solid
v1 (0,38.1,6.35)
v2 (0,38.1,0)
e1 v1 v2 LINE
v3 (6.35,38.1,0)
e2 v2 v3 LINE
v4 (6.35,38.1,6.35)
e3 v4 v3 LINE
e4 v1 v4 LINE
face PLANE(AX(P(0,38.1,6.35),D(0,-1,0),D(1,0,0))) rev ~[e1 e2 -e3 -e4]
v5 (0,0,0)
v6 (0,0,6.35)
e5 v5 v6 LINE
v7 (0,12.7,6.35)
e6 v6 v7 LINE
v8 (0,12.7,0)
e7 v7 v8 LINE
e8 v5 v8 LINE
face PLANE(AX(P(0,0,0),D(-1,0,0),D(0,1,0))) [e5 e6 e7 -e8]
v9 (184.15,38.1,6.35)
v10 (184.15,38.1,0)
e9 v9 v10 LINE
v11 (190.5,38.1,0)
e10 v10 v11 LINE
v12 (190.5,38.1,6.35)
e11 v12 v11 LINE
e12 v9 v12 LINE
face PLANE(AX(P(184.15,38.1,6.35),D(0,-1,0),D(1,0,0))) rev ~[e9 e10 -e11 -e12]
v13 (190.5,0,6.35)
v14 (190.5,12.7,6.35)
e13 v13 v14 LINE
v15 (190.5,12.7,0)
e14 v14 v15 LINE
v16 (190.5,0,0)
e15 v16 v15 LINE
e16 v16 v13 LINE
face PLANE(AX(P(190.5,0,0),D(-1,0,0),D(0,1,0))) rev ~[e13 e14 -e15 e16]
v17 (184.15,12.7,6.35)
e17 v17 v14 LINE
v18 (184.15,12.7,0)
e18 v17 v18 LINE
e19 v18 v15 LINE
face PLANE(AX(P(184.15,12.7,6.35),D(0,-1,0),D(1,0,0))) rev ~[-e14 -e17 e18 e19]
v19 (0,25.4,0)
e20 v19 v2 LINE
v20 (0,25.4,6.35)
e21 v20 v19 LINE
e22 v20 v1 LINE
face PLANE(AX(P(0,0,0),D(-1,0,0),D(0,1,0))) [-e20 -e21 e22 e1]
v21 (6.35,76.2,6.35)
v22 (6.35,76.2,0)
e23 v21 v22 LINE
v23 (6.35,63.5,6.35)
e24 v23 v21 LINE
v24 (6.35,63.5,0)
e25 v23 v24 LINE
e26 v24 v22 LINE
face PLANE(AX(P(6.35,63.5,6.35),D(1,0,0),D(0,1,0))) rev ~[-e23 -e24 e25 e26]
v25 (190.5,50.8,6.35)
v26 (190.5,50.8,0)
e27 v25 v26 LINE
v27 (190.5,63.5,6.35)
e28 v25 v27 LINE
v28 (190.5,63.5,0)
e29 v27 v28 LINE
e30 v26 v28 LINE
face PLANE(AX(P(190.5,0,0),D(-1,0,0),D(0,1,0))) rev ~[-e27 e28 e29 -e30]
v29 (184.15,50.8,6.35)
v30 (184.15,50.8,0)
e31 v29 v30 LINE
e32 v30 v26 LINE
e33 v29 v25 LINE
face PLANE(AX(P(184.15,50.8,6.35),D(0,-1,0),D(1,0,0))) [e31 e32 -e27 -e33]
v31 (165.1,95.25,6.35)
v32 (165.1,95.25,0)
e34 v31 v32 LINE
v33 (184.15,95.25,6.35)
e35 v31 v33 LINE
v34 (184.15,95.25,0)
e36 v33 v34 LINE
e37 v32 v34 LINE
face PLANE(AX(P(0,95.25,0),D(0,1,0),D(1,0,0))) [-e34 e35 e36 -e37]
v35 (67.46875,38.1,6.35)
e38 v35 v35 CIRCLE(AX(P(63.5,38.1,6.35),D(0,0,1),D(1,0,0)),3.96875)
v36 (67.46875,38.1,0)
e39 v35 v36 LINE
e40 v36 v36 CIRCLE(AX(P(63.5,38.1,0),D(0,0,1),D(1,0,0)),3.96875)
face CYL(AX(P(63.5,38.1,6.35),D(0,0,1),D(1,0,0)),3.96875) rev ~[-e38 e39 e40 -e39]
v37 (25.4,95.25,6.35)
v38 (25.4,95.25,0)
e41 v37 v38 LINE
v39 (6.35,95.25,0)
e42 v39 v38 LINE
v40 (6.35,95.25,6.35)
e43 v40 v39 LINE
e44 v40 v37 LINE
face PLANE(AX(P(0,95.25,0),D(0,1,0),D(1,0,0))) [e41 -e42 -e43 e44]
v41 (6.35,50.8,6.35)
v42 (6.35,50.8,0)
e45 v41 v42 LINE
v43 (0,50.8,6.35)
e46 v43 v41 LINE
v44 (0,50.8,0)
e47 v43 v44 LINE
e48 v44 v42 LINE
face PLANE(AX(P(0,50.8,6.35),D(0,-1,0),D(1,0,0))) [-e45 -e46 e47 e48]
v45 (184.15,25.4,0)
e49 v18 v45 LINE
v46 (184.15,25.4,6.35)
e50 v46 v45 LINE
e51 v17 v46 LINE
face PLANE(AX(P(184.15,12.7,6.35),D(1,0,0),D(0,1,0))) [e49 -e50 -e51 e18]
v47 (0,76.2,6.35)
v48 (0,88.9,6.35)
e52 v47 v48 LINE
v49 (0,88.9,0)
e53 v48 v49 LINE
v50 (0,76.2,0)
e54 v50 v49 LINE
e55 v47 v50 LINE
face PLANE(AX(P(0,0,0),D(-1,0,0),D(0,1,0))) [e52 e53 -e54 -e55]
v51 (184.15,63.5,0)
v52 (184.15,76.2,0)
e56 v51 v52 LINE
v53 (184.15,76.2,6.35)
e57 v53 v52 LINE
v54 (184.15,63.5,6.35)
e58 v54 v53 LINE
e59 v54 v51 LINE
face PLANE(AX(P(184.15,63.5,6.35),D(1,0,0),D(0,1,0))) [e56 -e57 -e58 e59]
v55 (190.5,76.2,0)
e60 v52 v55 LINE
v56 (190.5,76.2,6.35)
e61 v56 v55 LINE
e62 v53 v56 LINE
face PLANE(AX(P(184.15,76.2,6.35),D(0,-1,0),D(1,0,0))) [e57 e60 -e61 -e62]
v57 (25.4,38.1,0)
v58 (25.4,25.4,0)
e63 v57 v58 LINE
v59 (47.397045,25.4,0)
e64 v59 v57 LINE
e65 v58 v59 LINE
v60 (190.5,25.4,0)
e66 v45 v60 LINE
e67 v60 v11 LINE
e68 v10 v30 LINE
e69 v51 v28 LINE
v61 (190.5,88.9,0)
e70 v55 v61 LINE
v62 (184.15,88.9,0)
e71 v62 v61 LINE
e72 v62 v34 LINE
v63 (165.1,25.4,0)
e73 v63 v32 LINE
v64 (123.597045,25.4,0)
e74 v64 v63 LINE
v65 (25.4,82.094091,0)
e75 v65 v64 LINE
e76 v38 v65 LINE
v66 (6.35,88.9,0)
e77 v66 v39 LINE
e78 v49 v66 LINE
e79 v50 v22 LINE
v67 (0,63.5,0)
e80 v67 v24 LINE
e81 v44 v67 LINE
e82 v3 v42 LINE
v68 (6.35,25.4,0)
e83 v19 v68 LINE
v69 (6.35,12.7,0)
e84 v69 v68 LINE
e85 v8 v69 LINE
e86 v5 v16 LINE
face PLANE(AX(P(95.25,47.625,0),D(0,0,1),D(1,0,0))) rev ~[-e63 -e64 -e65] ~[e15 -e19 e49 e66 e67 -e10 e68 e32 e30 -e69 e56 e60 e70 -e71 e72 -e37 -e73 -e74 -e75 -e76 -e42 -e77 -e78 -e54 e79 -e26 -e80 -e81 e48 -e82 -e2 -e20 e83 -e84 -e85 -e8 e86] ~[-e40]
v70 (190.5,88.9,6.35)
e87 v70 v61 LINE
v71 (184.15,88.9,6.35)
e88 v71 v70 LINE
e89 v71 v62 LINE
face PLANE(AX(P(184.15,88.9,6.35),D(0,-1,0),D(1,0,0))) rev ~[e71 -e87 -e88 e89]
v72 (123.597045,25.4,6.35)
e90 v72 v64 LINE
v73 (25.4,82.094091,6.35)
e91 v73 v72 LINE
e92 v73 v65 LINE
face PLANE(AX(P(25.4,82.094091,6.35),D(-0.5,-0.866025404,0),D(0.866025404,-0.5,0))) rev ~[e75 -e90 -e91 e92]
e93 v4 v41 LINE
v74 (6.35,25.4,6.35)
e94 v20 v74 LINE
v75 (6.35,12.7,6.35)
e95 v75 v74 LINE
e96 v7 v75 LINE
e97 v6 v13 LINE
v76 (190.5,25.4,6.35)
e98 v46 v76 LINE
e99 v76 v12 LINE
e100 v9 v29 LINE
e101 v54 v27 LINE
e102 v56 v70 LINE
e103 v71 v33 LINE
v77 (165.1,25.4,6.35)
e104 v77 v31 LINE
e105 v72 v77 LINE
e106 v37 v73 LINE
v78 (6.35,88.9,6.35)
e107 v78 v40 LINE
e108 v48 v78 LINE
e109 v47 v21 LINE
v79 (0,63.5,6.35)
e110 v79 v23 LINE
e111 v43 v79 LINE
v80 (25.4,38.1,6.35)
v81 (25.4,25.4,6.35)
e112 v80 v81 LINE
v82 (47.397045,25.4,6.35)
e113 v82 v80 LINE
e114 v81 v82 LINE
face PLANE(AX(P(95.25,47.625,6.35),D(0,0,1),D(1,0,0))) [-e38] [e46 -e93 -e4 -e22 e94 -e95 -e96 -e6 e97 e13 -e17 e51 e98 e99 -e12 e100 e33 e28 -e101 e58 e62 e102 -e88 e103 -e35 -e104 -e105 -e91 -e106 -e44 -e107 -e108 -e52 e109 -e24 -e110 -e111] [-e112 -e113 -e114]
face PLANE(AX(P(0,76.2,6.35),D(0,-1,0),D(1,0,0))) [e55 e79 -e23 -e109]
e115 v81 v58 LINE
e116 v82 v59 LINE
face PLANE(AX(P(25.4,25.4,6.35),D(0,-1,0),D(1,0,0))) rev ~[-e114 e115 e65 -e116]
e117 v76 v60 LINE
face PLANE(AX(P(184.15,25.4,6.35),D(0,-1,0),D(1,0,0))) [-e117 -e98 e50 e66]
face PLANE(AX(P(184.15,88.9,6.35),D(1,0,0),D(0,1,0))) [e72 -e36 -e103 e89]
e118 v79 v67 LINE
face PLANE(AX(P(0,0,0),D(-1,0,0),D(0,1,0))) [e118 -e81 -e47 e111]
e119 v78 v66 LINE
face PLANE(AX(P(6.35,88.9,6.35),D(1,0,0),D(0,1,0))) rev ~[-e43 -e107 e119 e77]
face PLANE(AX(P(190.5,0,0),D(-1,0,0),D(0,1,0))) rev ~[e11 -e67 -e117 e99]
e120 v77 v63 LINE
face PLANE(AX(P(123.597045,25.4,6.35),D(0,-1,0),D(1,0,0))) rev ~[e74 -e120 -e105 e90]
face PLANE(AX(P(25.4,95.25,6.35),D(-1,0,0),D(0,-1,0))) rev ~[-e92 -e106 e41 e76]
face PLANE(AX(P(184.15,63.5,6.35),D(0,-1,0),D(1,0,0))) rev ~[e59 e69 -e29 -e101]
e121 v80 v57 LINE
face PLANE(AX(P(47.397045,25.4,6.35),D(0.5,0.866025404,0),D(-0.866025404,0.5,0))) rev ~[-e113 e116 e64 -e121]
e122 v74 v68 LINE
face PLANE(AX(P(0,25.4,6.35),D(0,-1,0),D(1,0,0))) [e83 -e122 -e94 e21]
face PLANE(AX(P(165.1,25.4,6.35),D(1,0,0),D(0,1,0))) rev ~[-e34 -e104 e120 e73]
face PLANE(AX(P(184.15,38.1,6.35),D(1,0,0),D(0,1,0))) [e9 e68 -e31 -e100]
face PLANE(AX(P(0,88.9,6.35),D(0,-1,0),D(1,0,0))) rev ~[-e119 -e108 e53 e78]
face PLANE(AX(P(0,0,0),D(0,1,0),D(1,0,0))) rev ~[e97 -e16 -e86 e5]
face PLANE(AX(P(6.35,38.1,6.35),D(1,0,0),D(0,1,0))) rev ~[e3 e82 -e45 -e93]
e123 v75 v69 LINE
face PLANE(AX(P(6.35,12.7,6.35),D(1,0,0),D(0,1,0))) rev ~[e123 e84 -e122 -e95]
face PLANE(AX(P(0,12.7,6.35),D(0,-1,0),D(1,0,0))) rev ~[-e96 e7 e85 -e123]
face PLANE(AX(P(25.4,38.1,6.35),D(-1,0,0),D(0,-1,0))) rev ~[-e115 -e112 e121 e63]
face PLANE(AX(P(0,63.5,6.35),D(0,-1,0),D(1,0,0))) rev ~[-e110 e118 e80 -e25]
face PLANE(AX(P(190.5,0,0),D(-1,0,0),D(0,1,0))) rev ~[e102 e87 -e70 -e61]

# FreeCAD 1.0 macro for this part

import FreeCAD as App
import Part
import Sketcher

V = App.Vector
Q = App.Units.Quantity

doc = App.newDocument("Part")
body = doc.addObject("PartDesign::Body", "Body")

# Sketch on XY plane
sketch1 = body.newObject("Sketcher::SketchObject", "Sketch")
sketch1.AttachmentSupport = (doc.getObject("XY_Plane"), [""])
sketch1.MapMode = "FlatFace"
sketch1.addGeometry(Part.LineSegment(V(0, 95.25, 0), V(0, 0, 0)), False)
sketch1.addGeometry(Part.LineSegment(V(0, 0, 0), V(190.5, 0, 0)), False)
sketch1.addGeometry(Part.LineSegment(V(190.5, 0, 0), V(190.5, 95.25, 0)), False)
sketch1.addGeometry(Part.LineSegment(V(190.5, 95.25, 0), V(0, 95.25, 0)), False)
sketch1.addConstraint(Sketcher.Constraint("Coincident", 0, 2, 1, 1))
sketch1.addConstraint(Sketcher.Constraint("Coincident", 1, 2, 2, 1))
sketch1.addConstraint(Sketcher.Constraint("Coincident", 2, 2, 3, 1))
sketch1.addConstraint(Sketcher.Constraint("Coincident", 3, 2, 0, 1))
sketch1.addConstraint(Sketcher.Constraint("Vertical", 0))
sketch1.addConstraint(Sketcher.Constraint("Horizontal", 1))
sketch1.addConstraint(Sketcher.Constraint("Vertical", 2))
sketch1.addConstraint(Sketcher.Constraint("Horizontal", 3))
sketch1.addConstraint(Sketcher.Constraint("Coincident", 0, 2, -1, 1))
sketch1.addConstraint(Sketcher.Constraint("DistanceX", 1, 1, 1, 2, Q("7.5 in")))
sketch1.addConstraint(Sketcher.Constraint("DistanceY", 0, 2, 0, 1, Q("3.75 in")))
pad1 = body.newObject("PartDesign::Pad", "Pad")
pad1.Profile = sketch1
pad1.Length = Q("0.25 in")

# Sketch on XY plane
sketch2 = body.newObject("Sketcher::SketchObject", "Sketch001")
sketch2.AttachmentSupport = (doc.getObject("XY_Plane"), [""])
sketch2.MapMode = "FlatFace"
sketch2.AttachmentOffset = App.Placement(V(0, 0, 0.25 * 25.4), App.Rotation())
sketch2.addGeometry(Part.Circle(V(63.5, 38.1, 0), V(0, 0, 1), 3.96875), False)
sketch2.addConstraint(Sketcher.Constraint("Diameter", 0, Q("0.3125 in")))
sketch2.addConstraint(Sketcher.Constraint("DistanceX", -1, 1, 0, 3, Q("2.5 in")))
sketch2.addConstraint(Sketcher.Constraint("DistanceY", -1, 1, 0, 3, Q("1.5 in")))
pocket1 = body.newObject("PartDesign::Pocket", "Pocket")
pocket1.Profile = sketch2
pocket1.Type = "ThroughAll"

# Sketch on XY plane
sketch3 = body.newObject("Sketcher::SketchObject", "Sketch002")
sketch3.AttachmentSupport = (doc.getObject("XY_Plane"), [""])
sketch3.MapMode = "FlatFace"
sketch3.AttachmentOffset = App.Placement(V(0, 0, 0.25 * 25.4), App.Rotation())
sketch3.addGeometry(Part.LineSegment(V(0, 25.4, 0), V(0, 12.7, 0)), False)
sketch3.addGeometry(Part.LineSegment(V(0, 12.7, 0), V(6.35, 12.7, 0)), False)
sketch3.addGeometry(Part.LineSegment(V(6.35, 12.7, 0), V(6.35, 25.4, 0)), False)
sketch3.addGeometry(Part.LineSegment(V(6.35, 25.4, 0), V(0, 25.4, 0)), False)
sketch3.addConstraint(Sketcher.Constraint("Coincident", 0, 2, 1, 1))
sketch3.addConstraint(Sketcher.Constraint("Coincident", 1, 2, 2, 1))
sketch3.addConstraint(Sketcher.Constraint("Coincident", 2, 2, 3, 1))
sketch3.addConstraint(Sketcher.Constraint("Coincident", 3, 2, 0, 1))
sketch3.addConstraint(Sketcher.Constraint("Vertical", 0))
sketch3.addConstraint(Sketcher.Constraint("Horizontal", 1))
sketch3.addConstraint(Sketcher.Constraint("Vertical", 2))
sketch3.addConstraint(Sketcher.Constraint("Horizontal", 3))
sketch3.addConstraint(Sketcher.Constraint("PointOnObject", 0, 2, -2))
sketch3.addConstraint(Sketcher.Constraint("DistanceY", 0, 2, 0, 1, Q("0.5 in")))
sketch3.addConstraint(Sketcher.Constraint("DistanceY", -1, 1, 2, 2, Q("1 in")))
sketch3.addConstraint(Sketcher.Constraint("DistanceX", 1, 1, 1, 2, Q("0.25 in")))
pocket2 = body.newObject("PartDesign::Pocket", "Pocket001")
pocket2.Profile = sketch3
pocket2.Type = "ThroughAll"

# Sketch on XY plane
sketch4 = body.newObject("Sketcher::SketchObject", "Sketch003")
sketch4.AttachmentSupport = (doc.getObject("XY_Plane"), [""])
sketch4.MapMode = "FlatFace"
sketch4.AttachmentOffset = App.Placement(V(0, 0, 0.25 * 25.4), App.Rotation())
sketch4.addGeometry(Part.LineSegment(V(184.15, 25.4, 0), V(184.15, 12.7, 0)), False)
sketch4.addGeometry(Part.LineSegment(V(184.15, 12.7, 0), V(190.5, 12.7, 0)), False)
sketch4.addGeometry(Part.LineSegment(V(190.5, 12.7, 0), V(190.5, 25.4, 0)), False)
sketch4.addGeometry(Part.LineSegment(V(190.5, 25.4, 0), V(184.15, 25.4, 0)), False)
sketch4.addConstraint(Sketcher.Constraint("Coincident", 0, 2, 1, 1))
sketch4.addConstraint(Sketcher.Constraint("Coincident", 1, 2, 2, 1))
sketch4.addConstraint(Sketcher.Constraint("Coincident", 2, 2, 3, 1))
sketch4.addConstraint(Sketcher.Constraint("Coincident", 3, 2, 0, 1))
sketch4.addConstraint(Sketcher.Constraint("Vertical", 0))
sketch4.addConstraint(Sketcher.Constraint("Horizontal", 1))
sketch4.addConstraint(Sketcher.Constraint("Vertical", 2))
sketch4.addConstraint(Sketcher.Constraint("Horizontal", 3))
sketch4.addConstraint(Sketcher.Constraint("DistanceY", 0, 2, 0, 1, Q("0.5 in")))
sketch4.addConstraint(Sketcher.Constraint("DistanceY", -1, 1, 2, 2, Q("1 in")))
sketch4.addConstraint(Sketcher.Constraint("DistanceX", 1, 1, 1, 2, Q("0.25 in")))
sketch4.addConstraint(Sketcher.Constraint("DistanceX", -1, 1, 1, 2, Q("7.5 in")))
pocket3 = body.newObject("PartDesign::Pocket", "Pocket002")
pocket3.Profile = sketch4
pocket3.Type = "ThroughAll"
doc.recompute()

linearpattern = body.newObject("PartDesign::LinearPattern", "LinearPattern")
linearpattern.Originals = [pocket2, pocket3]
linearpattern.Direction = (doc.getObject("Y_Axis"), [""])
linearpattern.Mode = "offset"
linearpattern.Offset = Q("1 in")
linearpattern.Occurrences = 4
body.Tip = linearpattern

# Sketch on XY plane
sketch5 = body.newObject("Sketcher::SketchObject", "Sketch004")
sketch5.AttachmentSupport = (doc.getObject("XY_Plane"), [""])
sketch5.MapMode = "FlatFace"
sketch5.AttachmentOffset = App.Placement(V(0, 0, 0.25 * 25.4), App.Rotation())
sketch5.addGeometry(Part.LineSegment(V(25.4, 95.25, 0), V(25.4, 82.094091, 0)), False)
sketch5.addGeometry(Part.LineSegment(V(25.4, 82.094091, 0), V(123.597045, 25.4, 0)), False)
sketch5.addGeometry(Part.LineSegment(V(123.597045, 25.4, 0), V(165.1, 25.4, 0)), False)
sketch5.addGeometry(Part.LineSegment(V(165.1, 25.4, 0), V(165.1, 95.25, 0)), False)
sketch5.addGeometry(Part.LineSegment(V(165.1, 95.25, 0), V(25.4, 95.25, 0)), False)
sketch5.addGeometry(Part.LineSegment(V(25.4, 38.1, 0), V(25.4, 25.4, 0)), False)
sketch5.addGeometry(Part.LineSegment(V(25.4, 25.4, 0), V(47.397045, 25.4, 0)), False)
sketch5.addGeometry(Part.LineSegment(V(47.397045, 25.4, 0), V(25.4, 38.1, 0)), False)
sketch5.addConstraint(Sketcher.Constraint("Coincident", 0, 2, 1, 1))
sketch5.addConstraint(Sketcher.Constraint("Coincident", 1, 2, 2, 1))
sketch5.addConstraint(Sketcher.Constraint("Coincident", 2, 2, 3, 1))
sketch5.addConstraint(Sketcher.Constraint("Coincident", 3, 2, 4, 1))
sketch5.addConstraint(Sketcher.Constraint("Coincident", 4, 2, 0, 1))
sketch5.addConstraint(Sketcher.Constraint("Coincident", 5, 2, 6, 1))
sketch5.addConstraint(Sketcher.Constraint("Coincident", 6, 2, 7, 1))
sketch5.addConstraint(Sketcher.Constraint("Coincident", 7, 2, 5, 1))
sketch5.addConstraint(Sketcher.Constraint("Vertical", 0))
sketch5.addConstraint(Sketcher.Constraint("Horizontal", 2))
sketch5.addConstraint(Sketcher.Constraint("Vertical", 3))
sketch5.addConstraint(Sketcher.Constraint("Horizontal", 4))
sketch5.addConstraint(Sketcher.Constraint("Vertical", 5))
sketch5.addConstraint(Sketcher.Constraint("Horizontal", 6))
sketch5.addConstraint(Sketcher.Constraint("Parallel", 1, 7))
sketch5.addConstraint(Sketcher.Constraint("Horizontal", 2, 2, 5, 2))
sketch5.addConstraint(Sketcher.Constraint("Vertical", 4, 2, 5, 2))
sketch5.addConstraint(Sketcher.Constraint("Distance", 7, Q("1 in")))
sketch5.addConstraint(Sketcher.Constraint("DistanceX", 4, 2, 4, 1, Q("5.5 in")))
sketch5.addConstraint(Sketcher.Constraint("DistanceY", 5, 2, 5, 1, Q("0.5 in")))
sketch5.addConstraint(Sketcher.Constraint("DistanceX", -1, 1, 0, 2, Q("1 in")))
sketch5.addConstraint(Sketcher.Constraint("DistanceY", -1, 1, 1, 2, Q("1 in")))
sketch5.addConstraint(Sketcher.Constraint("DistanceX", 6, 2, 1, 2, Q("3 in")))
sketch5.addConstraint(Sketcher.Constraint("DistanceY", 3, 1, 3, 2, Q("2.75 in")))
pocket4 = body.newObject("PartDesign::Pocket", "Pocket003")
pocket4.Profile = sketch5
pocket4.Type = "ThroughAll"

doc.recompute()
